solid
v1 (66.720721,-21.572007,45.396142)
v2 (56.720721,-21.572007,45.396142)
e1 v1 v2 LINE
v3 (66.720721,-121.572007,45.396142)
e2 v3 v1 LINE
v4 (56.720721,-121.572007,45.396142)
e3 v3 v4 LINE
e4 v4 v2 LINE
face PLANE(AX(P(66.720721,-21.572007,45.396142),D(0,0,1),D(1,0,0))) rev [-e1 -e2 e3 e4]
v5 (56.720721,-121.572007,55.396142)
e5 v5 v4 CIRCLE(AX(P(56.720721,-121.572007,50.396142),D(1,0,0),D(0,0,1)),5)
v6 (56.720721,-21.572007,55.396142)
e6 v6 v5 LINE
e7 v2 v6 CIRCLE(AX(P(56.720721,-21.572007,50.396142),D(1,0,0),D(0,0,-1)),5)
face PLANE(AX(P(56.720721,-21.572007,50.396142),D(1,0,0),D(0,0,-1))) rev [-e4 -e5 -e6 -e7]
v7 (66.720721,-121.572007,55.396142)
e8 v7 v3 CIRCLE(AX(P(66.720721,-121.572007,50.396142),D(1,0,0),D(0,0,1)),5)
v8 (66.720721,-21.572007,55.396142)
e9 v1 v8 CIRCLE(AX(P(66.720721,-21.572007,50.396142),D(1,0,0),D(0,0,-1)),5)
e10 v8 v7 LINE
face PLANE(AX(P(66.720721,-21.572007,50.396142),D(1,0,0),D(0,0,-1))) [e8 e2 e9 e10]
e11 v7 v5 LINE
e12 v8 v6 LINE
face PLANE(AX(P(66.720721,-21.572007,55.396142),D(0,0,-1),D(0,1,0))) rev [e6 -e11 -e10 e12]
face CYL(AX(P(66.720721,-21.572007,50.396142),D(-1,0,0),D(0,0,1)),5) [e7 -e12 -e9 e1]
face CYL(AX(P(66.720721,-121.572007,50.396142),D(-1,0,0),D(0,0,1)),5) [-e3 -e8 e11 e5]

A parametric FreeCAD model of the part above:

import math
import FreeCAD as App
import Part
import Sketcher

V = App.Vector

doc = App.newDocument("Part")
body = doc.addObject("PartDesign::Body", "Body")

sketch1 = doc.addObject("Sketcher::SketchObject", "Sketch")
body.addObject(sketch1)
sketch1.AttachmentSupport = (doc.YZ_Plane, [""])
sketch1.MapMode = "FlatFace"
sketch1.AttachmentOffset = App.Placement(V(0, 0, 56.720721), App.Rotation())
sketch1.addGeometry([
    Part.LineSegment(V(-121.572007, 45.396142, 0), V(-21.572007, 45.396142, 0)),
    Part.ArcOfCircle(Part.Circle(V(-21.572007, 50.396142, 0), V(0, 0, 1), 5), math.radians(-90), math.radians(90)),
    Part.LineSegment(V(-21.572007, 55.396142, 0), V(-121.572007, 55.396142, 0)),
    Part.ArcOfCircle(Part.Circle(V(-121.572007, 50.396142, 0), V(0, 0, 1), 5), math.radians(90), math.radians(270)),
], False)
sketch1.addConstraint([
    Sketcher.Constraint("Tangent", 0, 2, 1, 1),
    Sketcher.Constraint("Tangent", 1, 2, 2, 1),
    Sketcher.Constraint("Tangent", 2, 2, 3, 1),
    Sketcher.Constraint("Tangent", 3, 2, 0, 1),
    Sketcher.Constraint("Horizontal", 0),
    Sketcher.Constraint("Horizontal", 2),
    Sketcher.Constraint("Radius", 1, 5.0),
    Sketcher.Constraint("DistanceX", 0, 1, 0, 2, 100.0),
    Sketcher.Constraint("DistanceY", -1, 1, 1, 3, 50.396142),
    Sketcher.Constraint("DistanceX", 1, 3, -1, 1, 21.572007),
])
pad1 = doc.addObject("PartDesign::Pad", "Pad")
body.addObject(pad1)
pad1.Profile = sketch1
pad1.Length = 10

doc.recompute()
